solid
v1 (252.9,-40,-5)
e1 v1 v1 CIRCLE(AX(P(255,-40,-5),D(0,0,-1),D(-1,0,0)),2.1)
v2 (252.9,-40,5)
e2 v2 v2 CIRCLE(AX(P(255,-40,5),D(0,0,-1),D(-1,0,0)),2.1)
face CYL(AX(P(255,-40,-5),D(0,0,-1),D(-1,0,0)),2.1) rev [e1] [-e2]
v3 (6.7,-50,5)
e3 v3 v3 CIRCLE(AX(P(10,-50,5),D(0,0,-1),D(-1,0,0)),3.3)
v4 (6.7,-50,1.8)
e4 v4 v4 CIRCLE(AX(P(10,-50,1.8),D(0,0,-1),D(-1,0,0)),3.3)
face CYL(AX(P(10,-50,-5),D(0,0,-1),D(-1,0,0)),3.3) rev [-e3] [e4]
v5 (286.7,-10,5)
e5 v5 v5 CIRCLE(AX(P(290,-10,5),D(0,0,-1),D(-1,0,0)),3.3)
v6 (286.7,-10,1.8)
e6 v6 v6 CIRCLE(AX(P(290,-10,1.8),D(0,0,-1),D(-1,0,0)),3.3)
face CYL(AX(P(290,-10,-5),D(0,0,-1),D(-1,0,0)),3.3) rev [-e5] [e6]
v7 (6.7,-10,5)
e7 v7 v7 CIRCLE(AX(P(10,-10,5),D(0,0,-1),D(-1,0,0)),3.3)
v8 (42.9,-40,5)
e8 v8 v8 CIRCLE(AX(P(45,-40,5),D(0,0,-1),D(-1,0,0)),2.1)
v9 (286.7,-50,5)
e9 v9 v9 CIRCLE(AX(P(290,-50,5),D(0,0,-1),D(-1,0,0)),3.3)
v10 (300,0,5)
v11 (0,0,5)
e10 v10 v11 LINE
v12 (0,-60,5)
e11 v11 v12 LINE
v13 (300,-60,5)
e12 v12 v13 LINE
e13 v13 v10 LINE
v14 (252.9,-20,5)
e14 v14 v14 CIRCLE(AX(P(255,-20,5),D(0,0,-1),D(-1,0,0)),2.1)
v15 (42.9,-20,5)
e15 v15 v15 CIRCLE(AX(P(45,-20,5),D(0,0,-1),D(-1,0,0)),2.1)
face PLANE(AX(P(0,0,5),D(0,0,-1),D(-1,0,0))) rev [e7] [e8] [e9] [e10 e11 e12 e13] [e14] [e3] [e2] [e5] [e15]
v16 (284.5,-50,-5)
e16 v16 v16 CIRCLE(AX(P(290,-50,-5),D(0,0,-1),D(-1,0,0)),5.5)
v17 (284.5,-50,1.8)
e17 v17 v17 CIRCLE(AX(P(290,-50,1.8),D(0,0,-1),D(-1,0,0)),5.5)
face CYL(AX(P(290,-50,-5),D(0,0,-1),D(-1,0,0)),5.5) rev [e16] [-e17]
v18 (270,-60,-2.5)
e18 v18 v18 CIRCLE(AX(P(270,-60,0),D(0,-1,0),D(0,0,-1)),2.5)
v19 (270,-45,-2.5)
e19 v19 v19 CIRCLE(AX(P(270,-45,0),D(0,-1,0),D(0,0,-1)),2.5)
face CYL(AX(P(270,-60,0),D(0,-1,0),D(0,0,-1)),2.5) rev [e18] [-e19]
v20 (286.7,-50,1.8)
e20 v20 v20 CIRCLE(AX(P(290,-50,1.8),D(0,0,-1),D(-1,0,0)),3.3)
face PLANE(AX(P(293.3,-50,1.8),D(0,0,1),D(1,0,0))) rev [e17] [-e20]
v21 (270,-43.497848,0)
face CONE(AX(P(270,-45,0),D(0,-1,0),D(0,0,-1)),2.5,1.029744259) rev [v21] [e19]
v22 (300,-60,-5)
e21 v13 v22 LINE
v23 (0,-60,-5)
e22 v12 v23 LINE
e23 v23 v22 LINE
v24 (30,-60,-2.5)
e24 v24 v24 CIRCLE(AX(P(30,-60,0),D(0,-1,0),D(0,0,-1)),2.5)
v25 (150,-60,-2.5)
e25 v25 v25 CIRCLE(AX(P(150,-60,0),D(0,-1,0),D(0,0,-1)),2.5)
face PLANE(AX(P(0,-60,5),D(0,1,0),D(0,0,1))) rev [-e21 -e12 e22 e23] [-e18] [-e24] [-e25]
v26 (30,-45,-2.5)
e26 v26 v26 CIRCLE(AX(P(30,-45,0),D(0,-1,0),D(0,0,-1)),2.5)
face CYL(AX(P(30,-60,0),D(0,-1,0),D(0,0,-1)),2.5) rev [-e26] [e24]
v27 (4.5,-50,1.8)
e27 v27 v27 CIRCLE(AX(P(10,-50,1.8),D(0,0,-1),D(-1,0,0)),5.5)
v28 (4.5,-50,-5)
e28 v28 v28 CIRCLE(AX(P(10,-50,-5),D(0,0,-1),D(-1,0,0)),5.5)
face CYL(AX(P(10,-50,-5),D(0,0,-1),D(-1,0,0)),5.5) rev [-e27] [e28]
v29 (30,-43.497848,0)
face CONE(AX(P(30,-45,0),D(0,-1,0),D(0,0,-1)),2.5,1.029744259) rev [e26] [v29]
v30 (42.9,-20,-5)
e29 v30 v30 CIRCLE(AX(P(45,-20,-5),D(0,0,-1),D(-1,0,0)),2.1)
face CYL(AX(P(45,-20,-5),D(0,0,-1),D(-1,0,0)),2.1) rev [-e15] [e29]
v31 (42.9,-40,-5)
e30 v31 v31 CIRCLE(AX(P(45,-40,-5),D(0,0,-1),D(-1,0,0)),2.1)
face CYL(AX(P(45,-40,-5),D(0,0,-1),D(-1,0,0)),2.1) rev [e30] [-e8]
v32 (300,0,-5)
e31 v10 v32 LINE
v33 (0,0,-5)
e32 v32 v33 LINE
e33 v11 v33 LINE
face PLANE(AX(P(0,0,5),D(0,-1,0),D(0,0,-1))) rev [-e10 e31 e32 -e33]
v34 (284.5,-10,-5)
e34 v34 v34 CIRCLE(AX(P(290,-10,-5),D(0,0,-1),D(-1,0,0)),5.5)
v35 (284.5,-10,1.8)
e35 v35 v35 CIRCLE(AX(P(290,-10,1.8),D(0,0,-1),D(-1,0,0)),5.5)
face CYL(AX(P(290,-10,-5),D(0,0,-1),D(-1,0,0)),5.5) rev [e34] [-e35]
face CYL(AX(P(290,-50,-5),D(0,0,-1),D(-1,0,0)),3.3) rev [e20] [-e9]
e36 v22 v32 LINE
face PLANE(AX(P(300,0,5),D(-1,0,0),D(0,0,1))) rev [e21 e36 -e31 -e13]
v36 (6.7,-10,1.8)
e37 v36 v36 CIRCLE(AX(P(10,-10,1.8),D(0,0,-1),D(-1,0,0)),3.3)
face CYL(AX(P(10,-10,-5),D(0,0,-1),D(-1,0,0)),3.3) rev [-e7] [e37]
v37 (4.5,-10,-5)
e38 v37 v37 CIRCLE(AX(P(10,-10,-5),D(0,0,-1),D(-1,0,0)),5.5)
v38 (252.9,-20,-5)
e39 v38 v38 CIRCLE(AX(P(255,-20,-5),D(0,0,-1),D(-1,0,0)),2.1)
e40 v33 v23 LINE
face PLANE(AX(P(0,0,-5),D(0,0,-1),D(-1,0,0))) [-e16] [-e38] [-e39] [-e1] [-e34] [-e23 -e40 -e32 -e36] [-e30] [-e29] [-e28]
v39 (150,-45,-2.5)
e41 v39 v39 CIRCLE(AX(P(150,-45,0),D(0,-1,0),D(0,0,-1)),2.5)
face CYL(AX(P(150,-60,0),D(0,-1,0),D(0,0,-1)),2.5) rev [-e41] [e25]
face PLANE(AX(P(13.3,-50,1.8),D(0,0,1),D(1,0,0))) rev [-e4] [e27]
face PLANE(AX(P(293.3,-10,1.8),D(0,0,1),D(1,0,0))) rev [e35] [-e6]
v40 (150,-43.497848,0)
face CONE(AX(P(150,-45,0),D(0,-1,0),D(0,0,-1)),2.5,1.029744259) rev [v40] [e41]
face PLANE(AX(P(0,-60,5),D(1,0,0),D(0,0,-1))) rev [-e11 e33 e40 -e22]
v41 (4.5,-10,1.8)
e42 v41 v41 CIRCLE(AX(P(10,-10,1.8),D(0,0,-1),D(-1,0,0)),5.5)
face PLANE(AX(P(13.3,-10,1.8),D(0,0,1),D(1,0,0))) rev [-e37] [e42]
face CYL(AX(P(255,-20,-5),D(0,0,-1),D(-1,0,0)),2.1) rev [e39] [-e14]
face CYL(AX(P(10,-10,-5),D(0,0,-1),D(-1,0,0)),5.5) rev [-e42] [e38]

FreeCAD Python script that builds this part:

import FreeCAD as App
import Part
import Sketcher

V = App.Vector

doc = App.newDocument("Part")
params = doc.addObject("Spreadsheet::Sheet", "Params")
for row, (alias, value) in enumerate([
    ("sketch1_width", "300 mm"),
    ("sketch1_height", "60 mm"),
    ("pad1_length", "10 mm"),
    ("sketch2_diameter", "5 mm"),
    ("hole_diameter", "5 mm"),
    ("hole_depth", "15 mm"),
    ("sketch3_diameter", "6.6 mm"),
    ("hole2_diameter", "6.6 mm"),
    ("hole2_cbore_diameter", "11 mm"),
    ("hole2_cbore_depth", "6.8 mm"),
    ("sketch4_diameter", "4.2 mm"),
    ("hole3_diameter", "4.2 mm"),
], start=1):
    params.set(f"A{row}", alias)
    params.set(f"B{row}", "=" + value)
    params.setAlias(f"B{row}", alias)

body = doc.addObject("PartDesign::Body", "Body")

# Sketch on XY plane
sketch1 = body.newObject("Sketcher::SketchObject", "Sketch")
sketch1.AttachmentSupport = (doc.getObject("XY_Plane"), [""])
sketch1.MapMode = "FlatFace"
sketch1.addGeometry([
    Part.LineSegment(V(0, 0, 0), V(0, -60, 0)),
    Part.LineSegment(V(0, -60, 0), V(300, -60, 0)),
    Part.LineSegment(V(300, -60, 0), V(300, 0, 0)),
    Part.LineSegment(V(300, 0, 0), V(0, 0, 0)),
], False)
sketch1.addConstraint([
    Sketcher.Constraint("Coincident", 0, 2, 1, 1),
    Sketcher.Constraint("Coincident", 1, 2, 2, 1),
    Sketcher.Constraint("Coincident", 2, 2, 3, 1),
    Sketcher.Constraint("Coincident", 3, 2, 0, 1),
    Sketcher.Constraint("Vertical", 0),
    Sketcher.Constraint("Horizontal", 1),
    Sketcher.Constraint("Vertical", 2),
    Sketcher.Constraint("Horizontal", 3),
    Sketcher.Constraint("Coincident", 3, 2, -1, 1),
    Sketcher.Constraint("DistanceX", 1, 1, 1, 2, 300.0),
    Sketcher.Constraint("DistanceY", 0, 2, 0, 1, 60.0),
])
sketch1.setExpression("Constraints[9]", "Params.sketch1_width")
sketch1.setExpression("Constraints[10]", "Params.sketch1_height")
pad1 = body.newObject("PartDesign::Pad", "Pad")
pad1.Profile = sketch1
pad1.setExpression("Length", "Params.pad1_length")
pad1.Midplane = True

# Sketch on XZ plane
sketch2 = body.newObject("Sketcher::SketchObject", "Sketch001")
sketch2.AttachmentSupport = (doc.getObject("XZ_Plane"), [""])
sketch2.MapMode = "FlatFace"
sketch2.AttachmentOffset = App.Placement(V(0, 0, 60), App.Rotation())
sketch2.addGeometry([
    Part.Circle(V(30, 0, 0), V(0, 0, 1), 2.5),
    Part.Circle(V(270, 0, 0), V(0, 0, 1), 2.5),
    Part.Circle(V(150, 0, 0), V(0, 0, 1), 2.5),
], False)
sketch2.addConstraint([
    Sketcher.Constraint("Equal", 0, 1),
    Sketcher.Constraint("Equal", 1, 2),
    Sketcher.Constraint("PointOnObject", 0, 3, -1),
    Sketcher.Constraint("PointOnObject", 1, 3, -1),
    Sketcher.Constraint("PointOnObject", 2, 3, -1),
    Sketcher.Constraint("Diameter", 0, 5.0),
    Sketcher.Constraint("DistanceX", -1, 1, 0, 3, 30.0),
    Sketcher.Constraint("DistanceX", -1, 1, 1, 3, 270.0),
    Sketcher.Constraint("DistanceX", -1, 1, 2, 3, 150.0),
])
sketch2.setExpression("Constraints[5]", "Params.sketch2_diameter")
doc.recompute()
hole = body.newObject("PartDesign::Hole", "Hole")
hole.Profile = sketch2
hole.ThreadType = "None"
hole.setExpression("Diameter", "Params.hole_diameter")
hole.DepthType = "Dimension"
hole.setExpression("Depth", "Params.hole_depth")
hole.DrillPoint = "Angled"
hole.DrillPointAngle = 118

# Sketch on XY plane
sketch3 = body.newObject("Sketcher::SketchObject", "Sketch002")
sketch3.AttachmentSupport = (doc.getObject("XY_Plane"), [""])
sketch3.MapMode = "FlatFace"
sketch3.AttachmentOffset = App.Placement(V(0, 0, -5), App.Rotation())
sketch3.addGeometry([
    Part.Circle(V(10, -10, 0), V(0, 0, 1), 3.3),
    Part.Circle(V(10, -50, 0), V(0, 0, 1), 3.3),
    Part.Circle(V(290, -10, 0), V(0, 0, 1), 3.3),
    Part.Circle(V(290, -50, 0), V(0, 0, 1), 3.3),
], False)
sketch3.addConstraint([
    Sketcher.Constraint("Equal", 0, 1),
    Sketcher.Constraint("Equal", 1, 2),
    Sketcher.Constraint("Equal", 2, 3),
    Sketcher.Constraint("Horizontal", 0, 3, 2, 3),
    Sketcher.Constraint("Horizontal", 1, 3, 3, 3),
    Sketcher.Constraint("Vertical", 0, 3, 1, 3),
    Sketcher.Constraint("Vertical", 2, 3, 3, 3),
    Sketcher.Constraint("Diameter", 0, 6.6),
    Sketcher.Constraint("DistanceX", -1, 1, 0, 3, 10.0),
    Sketcher.Constraint("DistanceY", 0, 3, -1, 1, 10.0),
    Sketcher.Constraint("DistanceY", 1, 3, -1, 1, 50.0),
    Sketcher.Constraint("DistanceX", -1, 1, 2, 3, 290.0),
])
sketch3.setExpression("Constraints[7]", "Params.sketch3_diameter")
doc.recompute()
hole2 = body.newObject("PartDesign::Hole", "Hole001")
hole2.Profile = sketch3
hole2.ThreadType = "None"
hole2.setExpression("Diameter", "Params.hole2_diameter")
hole2.DepthType = "ThroughAll"
hole2.HoleCutType = "Counterbore"
hole2.setExpression("HoleCutDiameter", "Params.hole2_cbore_diameter")
hole2.setExpression("HoleCutDepth", "Params.hole2_cbore_depth")
hole2.Reversed = True

# Sketch on XY plane
sketch4 = body.newObject("Sketcher::SketchObject", "Sketch003")
sketch4.AttachmentSupport = (doc.getObject("XY_Plane"), [""])
sketch4.MapMode = "FlatFace"
sketch4.AttachmentOffset = App.Placement(V(0, 0, -5), App.Rotation())
sketch4.addGeometry([
    Part.Circle(V(45, -20, 0), V(0, 0, 1), 2.1),
    Part.Circle(V(45, -40, 0), V(0, 0, 1), 2.1),
], False)
sketch4.addConstraint([
    Sketcher.Constraint("Equal", 0, 1),
    Sketcher.Constraint("Vertical", 0, 3, 1, 3),
    Sketcher.Constraint("Diameter", 0, 4.2),
    Sketcher.Constraint("DistanceX", -1, 1, 0, 3, 45.0),
    Sketcher.Constraint("DistanceY", 0, 3, -1, 1, 20.0),
    Sketcher.Constraint("DistanceY", 1, 3, -1, 1, 40.0),
])
sketch4.setExpression("Constraints[2]", "Params.sketch4_diameter")
doc.recompute()
hole3 = body.newObject("PartDesign::Hole", "Hole002")
hole3.Profile = sketch4
hole3.ThreadType = "None"
hole3.setExpression("Diameter", "Params.hole3_diameter")
hole3.DepthType = "ThroughAll"
hole3.Reversed = True
doc.recompute()

datumplane = body.newObject("PartDesign::Plane", "DatumPlane")
datumplane.AttachmentSupport = (doc.getObject("YZ_Plane"), [""])
datumplane.MapMode = "FlatFace"
datumplane.AttachmentOffset = App.Placement(V(0, 0, 150), App.Rotation())
mirrored = body.newObject("PartDesign::Mirrored", "Mirrored")
mirrored.Originals = [hole3]
mirrored.MirrorPlane = (datumplane, [""])
body.Tip = mirrored

doc.recompute()
